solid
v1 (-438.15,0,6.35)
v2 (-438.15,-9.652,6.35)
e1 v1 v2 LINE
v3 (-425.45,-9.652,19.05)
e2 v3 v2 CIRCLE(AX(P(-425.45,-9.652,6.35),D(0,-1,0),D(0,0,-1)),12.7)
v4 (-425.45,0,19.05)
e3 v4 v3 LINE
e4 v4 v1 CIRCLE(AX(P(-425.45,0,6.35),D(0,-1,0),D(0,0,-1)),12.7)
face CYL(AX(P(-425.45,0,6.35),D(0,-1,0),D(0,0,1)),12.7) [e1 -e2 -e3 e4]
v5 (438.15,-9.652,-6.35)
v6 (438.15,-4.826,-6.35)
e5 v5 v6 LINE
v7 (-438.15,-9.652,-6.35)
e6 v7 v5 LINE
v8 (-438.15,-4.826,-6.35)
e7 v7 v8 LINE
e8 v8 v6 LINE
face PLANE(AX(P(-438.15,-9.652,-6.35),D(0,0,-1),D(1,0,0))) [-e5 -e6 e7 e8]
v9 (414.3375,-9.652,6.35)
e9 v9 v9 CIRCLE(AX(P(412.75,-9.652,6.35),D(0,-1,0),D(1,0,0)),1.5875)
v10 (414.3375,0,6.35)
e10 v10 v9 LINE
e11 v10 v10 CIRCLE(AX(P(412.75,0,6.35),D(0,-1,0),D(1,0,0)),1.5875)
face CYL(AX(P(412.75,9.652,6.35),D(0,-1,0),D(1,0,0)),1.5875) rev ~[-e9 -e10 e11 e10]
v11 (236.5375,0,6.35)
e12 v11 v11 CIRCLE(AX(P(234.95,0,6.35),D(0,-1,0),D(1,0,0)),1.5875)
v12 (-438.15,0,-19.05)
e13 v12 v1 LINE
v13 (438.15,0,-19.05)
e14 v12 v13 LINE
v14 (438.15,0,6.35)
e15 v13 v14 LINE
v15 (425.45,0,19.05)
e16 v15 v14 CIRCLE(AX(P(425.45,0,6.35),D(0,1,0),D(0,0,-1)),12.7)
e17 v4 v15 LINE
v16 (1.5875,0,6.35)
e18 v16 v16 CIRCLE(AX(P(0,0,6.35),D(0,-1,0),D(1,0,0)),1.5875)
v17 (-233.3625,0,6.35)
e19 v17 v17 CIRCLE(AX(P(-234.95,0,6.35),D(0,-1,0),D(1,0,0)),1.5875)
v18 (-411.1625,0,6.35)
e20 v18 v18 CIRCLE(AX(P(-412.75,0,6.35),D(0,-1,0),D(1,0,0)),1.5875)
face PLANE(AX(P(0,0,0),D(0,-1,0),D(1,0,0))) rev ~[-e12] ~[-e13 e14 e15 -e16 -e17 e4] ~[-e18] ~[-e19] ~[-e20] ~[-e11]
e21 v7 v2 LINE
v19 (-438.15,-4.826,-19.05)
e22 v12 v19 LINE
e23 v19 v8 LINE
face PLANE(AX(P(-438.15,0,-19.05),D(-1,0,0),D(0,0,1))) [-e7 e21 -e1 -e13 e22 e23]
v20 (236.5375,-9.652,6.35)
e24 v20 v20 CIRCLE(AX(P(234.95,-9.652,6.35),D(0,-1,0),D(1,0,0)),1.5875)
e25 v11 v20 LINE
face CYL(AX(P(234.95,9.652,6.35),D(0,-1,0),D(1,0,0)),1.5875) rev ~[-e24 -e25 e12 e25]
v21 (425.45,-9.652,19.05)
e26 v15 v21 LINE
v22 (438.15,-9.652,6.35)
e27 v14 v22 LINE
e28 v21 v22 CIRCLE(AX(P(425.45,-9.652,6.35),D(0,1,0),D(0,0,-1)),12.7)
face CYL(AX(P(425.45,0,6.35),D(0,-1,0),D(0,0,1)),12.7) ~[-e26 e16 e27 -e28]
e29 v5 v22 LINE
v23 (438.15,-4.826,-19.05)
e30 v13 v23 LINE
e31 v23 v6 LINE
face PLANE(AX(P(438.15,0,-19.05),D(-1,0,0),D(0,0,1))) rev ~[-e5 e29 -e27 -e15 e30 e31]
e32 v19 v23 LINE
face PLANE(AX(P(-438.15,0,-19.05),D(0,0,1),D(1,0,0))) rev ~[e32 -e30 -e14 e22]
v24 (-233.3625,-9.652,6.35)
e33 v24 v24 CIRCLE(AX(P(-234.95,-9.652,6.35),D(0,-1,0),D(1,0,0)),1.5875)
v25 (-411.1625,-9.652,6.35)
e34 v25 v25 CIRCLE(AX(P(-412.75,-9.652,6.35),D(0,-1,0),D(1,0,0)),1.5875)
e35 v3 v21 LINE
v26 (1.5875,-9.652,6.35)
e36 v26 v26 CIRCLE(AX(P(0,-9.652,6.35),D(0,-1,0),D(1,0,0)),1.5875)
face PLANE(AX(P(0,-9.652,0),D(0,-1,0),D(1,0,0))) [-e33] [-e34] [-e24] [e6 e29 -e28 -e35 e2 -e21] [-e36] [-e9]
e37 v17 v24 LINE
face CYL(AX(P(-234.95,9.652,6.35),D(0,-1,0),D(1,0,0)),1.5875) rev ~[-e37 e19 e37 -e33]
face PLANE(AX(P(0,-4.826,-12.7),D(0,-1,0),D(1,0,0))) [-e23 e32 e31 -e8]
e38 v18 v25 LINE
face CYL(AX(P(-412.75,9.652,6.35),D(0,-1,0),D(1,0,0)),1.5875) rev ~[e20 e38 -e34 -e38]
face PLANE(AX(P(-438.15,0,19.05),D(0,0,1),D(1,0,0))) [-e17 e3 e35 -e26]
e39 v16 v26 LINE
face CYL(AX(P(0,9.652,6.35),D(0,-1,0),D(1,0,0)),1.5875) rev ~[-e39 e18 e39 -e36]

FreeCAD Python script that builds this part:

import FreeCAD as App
import Part
import Sketcher
Q = App.Units.Quantity


def edges_at(feature, points):
    """Names of the edges that pass closest to the given points."""
    edges = feature.Shape.Edges
    near = lambda p: min(range(len(edges)), key=lambda i: edges[i].distToShape(Part.Vertex(*p))[0])
    return sorted({f"Edge{near(p) + 1}" for p in points})

doc = App.newDocument("Part")
body = doc.addObject("PartDesign::Body", "Body")

# Sketch on XZ plane
sketch1 = body.newObject("Sketcher::SketchObject", "Sketch")
sketch1.AttachmentSupport = (doc.getObject("XZ_Plane"), [""])
sketch1.MapMode = "FlatFace"
sketch1.addGeometry([
    Part.LineSegment(App.Vector(-438, 19, 0), App.Vector(-438, -19, 0)),
    Part.LineSegment(App.Vector(-438, -19, 0), App.Vector(438, -19, 0)),
    Part.LineSegment(App.Vector(438, -19, 0), App.Vector(438, 19, 0)),
    Part.LineSegment(App.Vector(438, 19, 0), App.Vector(-438, 19, 0)),
], False)
sketch1.addConstraint([
    Sketcher.Constraint("Coincident", 0, 2, 1, 1),
    Sketcher.Constraint("Coincident", 1, 2, 2, 1),
    Sketcher.Constraint("Coincident", 2, 2, 3, 1),
    Sketcher.Constraint("Coincident", 3, 2, 0, 1),
    Sketcher.Constraint("Vertical", 0),
    Sketcher.Constraint("Horizontal", 1),
    Sketcher.Constraint("Vertical", 2),
    Sketcher.Constraint("Horizontal", 3),
    Sketcher.Constraint("Symmetric", 0, 2, 2, 2, -1, 1),
    Sketcher.Constraint("DistanceX", 1, 1, 1, 2, Q("34.5 in")),
    Sketcher.Constraint("DistanceY", 0, 2, 0, 1, Q("1.5 in")),
])
pad1 = body.newObject("PartDesign::Pad", "Pad")
pad1.Profile = sketch1
pad1.Length = Q("0.38 in")

# Sketch on XZ plane
sketch2 = body.newObject("Sketcher::SketchObject", "Sketch001")
sketch2.AttachmentSupport = (doc.getObject("XZ_Plane"), [""])
sketch2.MapMode = "FlatFace"
sketch2.addGeometry([
    Part.Circle(App.Vector(412.8, 6.3, 0), App.Vector(0, 0, 1), 1.6),  # 0
    Part.Circle(App.Vector(234.9, 6.3, 0), App.Vector(0, 0, 1), 1.6),  # 1
    Part.Circle(App.Vector(0, 6.3, 0), App.Vector(0, 0, 1), 1.6),  # 2
    Part.Circle(App.Vector(-234.9, 6.3, 0), App.Vector(0, 0, 1), 1.6),  # 3
    Part.Circle(App.Vector(-412.8, 6.3, 0), App.Vector(0, 0, 1), 1.6),  # 4
], False)
sketch2.addConstraint([
    Sketcher.Constraint("Equal", 0, 1),
    Sketcher.Constraint("Equal", 1, 2),
    Sketcher.Constraint("Equal", 2, 3),
    Sketcher.Constraint("Equal", 3, 4),
    Sketcher.Constraint("Symmetric", 1, 3, 3, 3, -2),
    Sketcher.Constraint("Symmetric", 0, 3, 4, 3, -2),
    Sketcher.Constraint("PointOnObject", 2, 3, -2),
    Sketcher.Constraint("Horizontal", 0, 3, 1, 3),
    Sketcher.Constraint("Horizontal", 1, 3, 2, 3),
    Sketcher.Constraint("Diameter", 0, Q("0.125 in")),
    Sketcher.Constraint("DistanceX", 1, 3, 0, 3, Q("7 in")),
    Sketcher.Constraint("DistanceX", 3, 3, 1, 3, Q("18.5 in")),
    Sketcher.Constraint("DistanceY", -1, 1, 0, 3, Q("0.25 in")),
])
doc.recompute()
hole = body.newObject("PartDesign::Hole", "Hole")
hole.Profile = sketch2
hole.ThreadType = "None"
hole.Diameter = Q("0.125 in")
hole.DepthType = "Dimension"
hole.Depth = Q("0.38 in")
hole.DrillPoint = "Flat"
hole.Reversed = True
doc.recompute()

fillet = body.newObject("PartDesign::Fillet", "Fillet")
fillet.Base = (hole, edges_at(hole, [(438.15, -4.826, 19.05)]))
fillet.Radius = Q("0.5 in")
doc.recompute()

fillet2 = body.newObject("PartDesign::Fillet", "Fillet001")
fillet2.Base = (fillet, edges_at(fillet, [(-438.15, -4.826, 19.05)]))
fillet2.Radius = Q("0.5 in")

# Sketch on XZ plane
sketch3 = body.newObject("Sketcher::SketchObject", "Sketch002")
sketch3.AttachmentSupport = (doc.getObject("XZ_Plane"), [""])
sketch3.MapMode = "FlatFace"
sketch3.AttachmentOffset = App.Placement(App.Vector(0, 0, 0.38 * 25.4), App.Rotation())
sketch3.addGeometry([
    Part.LineSegment(App.Vector(-438, -6, 0), App.Vector(-438, -19, 0)),
    Part.LineSegment(App.Vector(-438, -19, 0), App.Vector(438, -19, 0)),
    Part.LineSegment(App.Vector(438, -19, 0), App.Vector(438, -6, 0)),
    Part.LineSegment(App.Vector(438, -6, 0), App.Vector(-438, -6, 0)),
], False)
sketch3.addConstraint([
    Sketcher.Constraint("Coincident", 0, 2, 1, 1),
    Sketcher.Constraint("Coincident", 1, 2, 2, 1),
    Sketcher.Constraint("Coincident", 2, 2, 3, 1),
    Sketcher.Constraint("Coincident", 3, 2, 0, 1),
    Sketcher.Constraint("Vertical", 0),
    Sketcher.Constraint("Horizontal", 1),
    Sketcher.Constraint("Vertical", 2),
    Sketcher.Constraint("Horizontal", 3),
    Sketcher.Constraint("DistanceX", 1, 1, 1, 2, Q("34.5 in")),
    Sketcher.Constraint("DistanceY", 0, 2, 0, 1, Q("0.5 in")),
    Sketcher.Constraint("DistanceX", 0, 2, -1, 1, Q("17.25 in")),
    Sketcher.Constraint("DistanceY", 0, 2, -1, 1, Q("0.75 in")),
])
pocket1 = body.newObject("PartDesign::Pocket", "Pocket")
pocket1.Profile = sketch3
pocket1.Length = Q("0.19 in")

doc.recompute()
